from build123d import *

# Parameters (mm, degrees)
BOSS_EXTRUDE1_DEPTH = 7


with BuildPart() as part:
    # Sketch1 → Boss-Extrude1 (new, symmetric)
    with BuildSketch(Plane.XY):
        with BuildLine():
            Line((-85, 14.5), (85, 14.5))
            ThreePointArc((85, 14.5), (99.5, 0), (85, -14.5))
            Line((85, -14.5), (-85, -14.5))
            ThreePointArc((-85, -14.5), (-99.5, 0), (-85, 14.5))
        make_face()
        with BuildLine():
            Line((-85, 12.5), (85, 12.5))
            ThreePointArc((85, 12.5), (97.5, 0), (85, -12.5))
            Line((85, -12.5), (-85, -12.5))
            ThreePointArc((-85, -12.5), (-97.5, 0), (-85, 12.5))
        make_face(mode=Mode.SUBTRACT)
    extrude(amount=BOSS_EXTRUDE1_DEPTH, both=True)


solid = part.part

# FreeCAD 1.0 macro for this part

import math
import FreeCAD as App
import Part
import Sketcher

V = App.Vector
Q = App.Units.Quantity

doc = App.newDocument("Part")
body = doc.addObject("PartDesign::Body", "Body")

sketch1 = doc.addObject("Sketcher::SketchObject", "Sketch")
body.addObject(sketch1)
sketch1.AttachmentSupport = (doc.XY_Plane, [""])
sketch1.MapMode = "FlatFace"
sketch1.addGeometry(Part.LineSegment(V(85, 14.5, 0), V(-85, 14.5, 0)), False)
sketch1.addGeometry(Part.ArcOfCircle(Part.Circle(V(-85, 0, 0), V(0, 0, 1), 14.5), math.radians(90), math.radians(270)), False)
sketch1.addGeometry(Part.LineSegment(V(-85, -14.5, 0), V(85, -14.5, 0)), False)
sketch1.addGeometry(Part.ArcOfCircle(Part.Circle(V(85, 0, 0), V(0, 0, 1), 14.5), math.radians(-90), math.radians(90)), False)
sketch1.addGeometry(Part.LineSegment(V(-85, 12.5, 0), V(85, 12.5, 0)), False)
sketch1.addGeometry(Part.ArcOfCircle(Part.Circle(V(85, 0, 0), V(0, 0, 1), 12.5), math.radians(-90), math.radians(90)), False)
sketch1.addGeometry(Part.LineSegment(V(85, -12.5, 0), V(-85, -12.5, 0)), False)
sketch1.addGeometry(Part.ArcOfCircle(Part.Circle(V(-85, 0, 0), V(0, 0, 1), 12.5), math.radians(90), math.radians(270)), False)
sketch1.addConstraint(Sketcher.Constraint("Tangent", 0, 2, 1, 1))
sketch1.addConstraint(Sketcher.Constraint("Tangent", 1, 2, 2, 1))
sketch1.addConstraint(Sketcher.Constraint("Tangent", 2, 2, 3, 1))
sketch1.addConstraint(Sketcher.Constraint("Tangent", 3, 2, 0, 1))
sketch1.addConstraint(Sketcher.Constraint("Tangent", 4, 2, 5, 2))
sketch1.addConstraint(Sketcher.Constraint("Tangent", 5, 1, 6, 1))
sketch1.addConstraint(Sketcher.Constraint("Tangent", 6, 2, 7, 2))
sketch1.addConstraint(Sketcher.Constraint("Tangent", 7, 1, 4, 1))
sketch1.addConstraint(Sketcher.Constraint("Horizontal", 0))
sketch1.addConstraint(Sketcher.Constraint("Horizontal", 2))
sketch1.addConstraint(Sketcher.Constraint("Horizontal", 4))
sketch1.addConstraint(Sketcher.Constraint("Horizontal", 6))
sketch1.addConstraint(Sketcher.Constraint("Coincident", 5, 3, 3, 3))
sketch1.addConstraint(Sketcher.Constraint("Symmetric", 1, 3, 3, 3, -1, 1))
sketch1.addConstraint(Sketcher.Constraint("Vertical", 7, 3, 0, 2))
sketch1.addConstraint(Sketcher.Constraint("Radius", 1, Q("14.5 mm")))
sketch1.addConstraint(Sketcher.Constraint("Radius", 5, Q("12.5 mm")))
sketch1.addConstraint(Sketcher.Constraint("DistanceX", 0, 2, 0, 1, Q("170 mm")))
pad1 = doc.addObject("PartDesign::Pad", "Pad")
body.addObject(pad1)
pad1.Profile = sketch1
pad1.Length = 14
pad1.Midplane = True

doc.recompute()
